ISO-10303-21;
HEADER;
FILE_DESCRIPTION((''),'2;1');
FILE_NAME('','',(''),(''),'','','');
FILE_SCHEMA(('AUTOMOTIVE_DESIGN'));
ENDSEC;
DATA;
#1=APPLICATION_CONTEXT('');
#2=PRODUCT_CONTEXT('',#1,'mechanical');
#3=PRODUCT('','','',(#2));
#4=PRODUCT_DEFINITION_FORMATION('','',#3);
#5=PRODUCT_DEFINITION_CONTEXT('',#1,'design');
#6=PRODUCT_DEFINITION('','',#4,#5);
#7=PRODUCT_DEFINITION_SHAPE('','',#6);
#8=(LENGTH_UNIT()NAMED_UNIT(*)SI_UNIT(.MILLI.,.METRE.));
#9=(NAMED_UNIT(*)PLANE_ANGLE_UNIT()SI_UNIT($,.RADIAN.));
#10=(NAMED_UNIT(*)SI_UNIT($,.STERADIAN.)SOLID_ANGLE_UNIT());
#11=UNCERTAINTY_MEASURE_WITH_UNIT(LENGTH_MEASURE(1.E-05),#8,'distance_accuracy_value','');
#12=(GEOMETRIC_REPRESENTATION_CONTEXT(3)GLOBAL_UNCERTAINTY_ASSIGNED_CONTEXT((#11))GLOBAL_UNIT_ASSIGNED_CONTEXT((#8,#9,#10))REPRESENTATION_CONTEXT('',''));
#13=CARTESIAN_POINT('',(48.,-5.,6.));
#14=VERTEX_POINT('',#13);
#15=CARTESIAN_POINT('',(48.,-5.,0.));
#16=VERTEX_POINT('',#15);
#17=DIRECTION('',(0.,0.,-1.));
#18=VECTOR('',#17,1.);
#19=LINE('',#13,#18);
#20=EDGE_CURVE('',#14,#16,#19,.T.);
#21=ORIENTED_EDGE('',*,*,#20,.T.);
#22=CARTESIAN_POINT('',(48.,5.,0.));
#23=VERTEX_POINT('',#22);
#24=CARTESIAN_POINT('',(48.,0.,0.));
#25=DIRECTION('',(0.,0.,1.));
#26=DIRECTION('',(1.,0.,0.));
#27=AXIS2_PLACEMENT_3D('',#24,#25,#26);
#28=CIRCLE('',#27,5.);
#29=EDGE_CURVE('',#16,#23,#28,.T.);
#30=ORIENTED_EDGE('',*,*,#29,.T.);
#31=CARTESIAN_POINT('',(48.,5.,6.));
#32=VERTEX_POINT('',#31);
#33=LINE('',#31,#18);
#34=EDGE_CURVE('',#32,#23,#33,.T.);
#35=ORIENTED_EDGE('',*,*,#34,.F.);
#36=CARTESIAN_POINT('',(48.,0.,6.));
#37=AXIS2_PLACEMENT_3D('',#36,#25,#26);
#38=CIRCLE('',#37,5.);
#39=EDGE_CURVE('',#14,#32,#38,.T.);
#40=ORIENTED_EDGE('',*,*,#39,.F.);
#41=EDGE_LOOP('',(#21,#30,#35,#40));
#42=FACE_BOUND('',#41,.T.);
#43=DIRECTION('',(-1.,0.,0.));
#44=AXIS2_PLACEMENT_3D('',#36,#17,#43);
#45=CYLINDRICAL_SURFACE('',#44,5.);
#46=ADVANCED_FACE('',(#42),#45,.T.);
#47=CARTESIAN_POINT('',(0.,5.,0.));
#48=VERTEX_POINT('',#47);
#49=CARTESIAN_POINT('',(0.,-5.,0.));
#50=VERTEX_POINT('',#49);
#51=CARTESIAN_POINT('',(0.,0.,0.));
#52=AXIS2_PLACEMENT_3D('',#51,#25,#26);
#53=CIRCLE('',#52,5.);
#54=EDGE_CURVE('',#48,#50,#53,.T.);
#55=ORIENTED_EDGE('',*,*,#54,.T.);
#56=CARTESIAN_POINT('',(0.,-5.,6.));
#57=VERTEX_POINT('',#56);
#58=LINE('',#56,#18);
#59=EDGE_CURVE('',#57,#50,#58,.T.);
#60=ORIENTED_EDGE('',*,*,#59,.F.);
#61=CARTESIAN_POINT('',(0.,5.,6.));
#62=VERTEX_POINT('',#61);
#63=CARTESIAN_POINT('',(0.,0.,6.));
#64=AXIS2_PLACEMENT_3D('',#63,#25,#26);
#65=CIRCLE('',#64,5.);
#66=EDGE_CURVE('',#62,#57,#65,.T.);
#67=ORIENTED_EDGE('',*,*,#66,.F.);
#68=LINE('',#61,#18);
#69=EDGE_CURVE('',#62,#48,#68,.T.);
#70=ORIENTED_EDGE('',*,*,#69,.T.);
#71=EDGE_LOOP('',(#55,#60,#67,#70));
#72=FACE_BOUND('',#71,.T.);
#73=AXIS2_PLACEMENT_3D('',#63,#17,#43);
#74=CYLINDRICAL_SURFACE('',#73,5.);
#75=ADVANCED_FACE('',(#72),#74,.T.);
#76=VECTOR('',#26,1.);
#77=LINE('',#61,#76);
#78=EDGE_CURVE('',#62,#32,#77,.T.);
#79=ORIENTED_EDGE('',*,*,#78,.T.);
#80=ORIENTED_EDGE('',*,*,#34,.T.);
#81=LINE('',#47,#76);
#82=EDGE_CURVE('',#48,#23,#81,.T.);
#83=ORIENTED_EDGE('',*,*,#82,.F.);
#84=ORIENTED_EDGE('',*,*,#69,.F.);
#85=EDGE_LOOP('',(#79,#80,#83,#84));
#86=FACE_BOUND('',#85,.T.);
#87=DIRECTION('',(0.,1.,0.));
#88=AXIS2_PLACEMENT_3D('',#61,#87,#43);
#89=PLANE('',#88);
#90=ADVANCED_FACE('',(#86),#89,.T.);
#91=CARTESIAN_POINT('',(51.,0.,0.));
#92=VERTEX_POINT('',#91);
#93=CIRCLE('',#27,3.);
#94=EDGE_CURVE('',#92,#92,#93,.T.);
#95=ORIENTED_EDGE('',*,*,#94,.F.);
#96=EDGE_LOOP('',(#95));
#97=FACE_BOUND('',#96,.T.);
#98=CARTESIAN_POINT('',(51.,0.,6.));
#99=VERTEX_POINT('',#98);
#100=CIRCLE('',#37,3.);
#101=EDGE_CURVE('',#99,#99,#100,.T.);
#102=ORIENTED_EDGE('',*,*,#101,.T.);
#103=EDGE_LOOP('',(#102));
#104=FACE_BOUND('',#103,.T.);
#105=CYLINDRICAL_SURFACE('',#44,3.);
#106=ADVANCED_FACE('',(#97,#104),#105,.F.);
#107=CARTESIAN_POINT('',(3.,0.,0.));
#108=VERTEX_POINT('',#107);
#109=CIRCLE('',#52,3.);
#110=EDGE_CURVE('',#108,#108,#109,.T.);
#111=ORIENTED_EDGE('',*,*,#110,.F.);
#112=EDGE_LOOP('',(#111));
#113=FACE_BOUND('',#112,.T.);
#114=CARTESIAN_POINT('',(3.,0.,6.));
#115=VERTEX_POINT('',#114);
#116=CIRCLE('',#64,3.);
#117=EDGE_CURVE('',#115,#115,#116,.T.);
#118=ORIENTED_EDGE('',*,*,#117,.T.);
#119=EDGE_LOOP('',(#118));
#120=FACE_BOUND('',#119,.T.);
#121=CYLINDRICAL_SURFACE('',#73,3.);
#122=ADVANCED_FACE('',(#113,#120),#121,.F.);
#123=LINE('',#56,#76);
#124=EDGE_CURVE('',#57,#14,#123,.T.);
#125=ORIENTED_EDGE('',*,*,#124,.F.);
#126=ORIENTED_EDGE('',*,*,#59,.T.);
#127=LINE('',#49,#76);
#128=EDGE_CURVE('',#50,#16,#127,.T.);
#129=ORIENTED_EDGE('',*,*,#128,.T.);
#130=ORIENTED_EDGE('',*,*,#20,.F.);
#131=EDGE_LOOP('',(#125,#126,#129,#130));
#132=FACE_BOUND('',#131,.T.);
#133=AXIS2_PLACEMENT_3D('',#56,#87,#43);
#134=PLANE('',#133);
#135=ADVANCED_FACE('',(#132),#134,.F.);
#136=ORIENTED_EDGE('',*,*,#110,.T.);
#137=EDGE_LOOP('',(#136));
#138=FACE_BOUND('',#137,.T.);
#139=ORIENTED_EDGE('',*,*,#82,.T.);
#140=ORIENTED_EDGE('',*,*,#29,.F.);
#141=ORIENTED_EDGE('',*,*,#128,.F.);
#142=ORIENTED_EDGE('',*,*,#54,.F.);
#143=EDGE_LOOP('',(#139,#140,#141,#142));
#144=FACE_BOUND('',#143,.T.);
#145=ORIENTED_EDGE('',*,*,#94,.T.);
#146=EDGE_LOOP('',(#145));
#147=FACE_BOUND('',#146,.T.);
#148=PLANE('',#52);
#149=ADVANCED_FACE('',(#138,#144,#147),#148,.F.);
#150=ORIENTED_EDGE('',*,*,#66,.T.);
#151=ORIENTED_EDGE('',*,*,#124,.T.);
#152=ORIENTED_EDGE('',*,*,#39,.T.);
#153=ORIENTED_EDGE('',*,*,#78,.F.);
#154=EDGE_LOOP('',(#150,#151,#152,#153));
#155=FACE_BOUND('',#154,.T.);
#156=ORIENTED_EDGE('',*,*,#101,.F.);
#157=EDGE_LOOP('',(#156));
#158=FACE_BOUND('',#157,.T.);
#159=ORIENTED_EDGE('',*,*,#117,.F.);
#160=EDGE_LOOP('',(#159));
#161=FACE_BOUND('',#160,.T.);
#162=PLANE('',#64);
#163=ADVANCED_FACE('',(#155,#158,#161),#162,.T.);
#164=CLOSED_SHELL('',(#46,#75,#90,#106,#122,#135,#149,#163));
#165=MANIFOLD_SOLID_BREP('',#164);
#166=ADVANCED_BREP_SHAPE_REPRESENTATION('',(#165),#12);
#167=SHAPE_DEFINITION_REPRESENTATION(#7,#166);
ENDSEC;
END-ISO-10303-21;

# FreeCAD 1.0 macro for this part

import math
import FreeCAD as App
import Part
import Sketcher
from FreeCAD import Vector
Q = App.Units.Quantity

doc = App.newDocument("Part")
body = doc.addObject("PartDesign::Body", "Body")

sketch1 = body.newObject("Sketcher::SketchObject", "Sketch")
sketch1.AttachmentSupport = (doc.getObject("XY_Plane"), [""])
sketch1.MapMode = "FlatFace"
sketch1.addGeometry([
    Part.ArcOfCircle(Part.Circle(Vector(0, 0, 0), Vector(0, 0, 1), 5), math.radians(90), math.radians(270)),
    Part.LineSegment(Vector(0, -5, 0), Vector(48, -5, 0)),
    Part.ArcOfCircle(Part.Circle(Vector(48, 0, 0), Vector(0, 0, 1), 5), math.radians(-90), math.radians(90)),
    Part.LineSegment(Vector(48, 5, 0), Vector(0, 5, 0)),
    Part.Circle(Vector(0, 0, 0), Vector(0, 0, 1), 3),
    Part.Circle(Vector(48, 0, 0), Vector(0, 0, 1), 3),
], False)
sketch1.addConstraint([
    Sketcher.Constraint("Tangent", 0, 2, 1, 1),
    Sketcher.Constraint("Tangent", 1, 2, 2, 1),
    Sketcher.Constraint("Tangent", 2, 2, 3, 1),
    Sketcher.Constraint("Tangent", 3, 2, 0, 1),
    Sketcher.Constraint("Horizontal", 1),
    Sketcher.Constraint("Horizontal", 3),
    Sketcher.Constraint("Coincident", 0, 3, -1, 1),
    Sketcher.Constraint("Coincident", 4, 3, -1, 1),
    Sketcher.Constraint("Coincident", 5, 3, 2, 3),
    Sketcher.Constraint("Equal", 4, 5),
    Sketcher.Constraint("Diameter", 4, Q("6 mm")),
    Sketcher.Constraint("Radius", 0, Q("5 mm")),
    Sketcher.Constraint("DistanceX", 1, 1, 1, 2, Q("48 mm")),
])
pad1 = body.newObject("PartDesign::Pad", "Pad")
pad1.Profile = sketch1
pad1.Length = 6

doc.recompute()
